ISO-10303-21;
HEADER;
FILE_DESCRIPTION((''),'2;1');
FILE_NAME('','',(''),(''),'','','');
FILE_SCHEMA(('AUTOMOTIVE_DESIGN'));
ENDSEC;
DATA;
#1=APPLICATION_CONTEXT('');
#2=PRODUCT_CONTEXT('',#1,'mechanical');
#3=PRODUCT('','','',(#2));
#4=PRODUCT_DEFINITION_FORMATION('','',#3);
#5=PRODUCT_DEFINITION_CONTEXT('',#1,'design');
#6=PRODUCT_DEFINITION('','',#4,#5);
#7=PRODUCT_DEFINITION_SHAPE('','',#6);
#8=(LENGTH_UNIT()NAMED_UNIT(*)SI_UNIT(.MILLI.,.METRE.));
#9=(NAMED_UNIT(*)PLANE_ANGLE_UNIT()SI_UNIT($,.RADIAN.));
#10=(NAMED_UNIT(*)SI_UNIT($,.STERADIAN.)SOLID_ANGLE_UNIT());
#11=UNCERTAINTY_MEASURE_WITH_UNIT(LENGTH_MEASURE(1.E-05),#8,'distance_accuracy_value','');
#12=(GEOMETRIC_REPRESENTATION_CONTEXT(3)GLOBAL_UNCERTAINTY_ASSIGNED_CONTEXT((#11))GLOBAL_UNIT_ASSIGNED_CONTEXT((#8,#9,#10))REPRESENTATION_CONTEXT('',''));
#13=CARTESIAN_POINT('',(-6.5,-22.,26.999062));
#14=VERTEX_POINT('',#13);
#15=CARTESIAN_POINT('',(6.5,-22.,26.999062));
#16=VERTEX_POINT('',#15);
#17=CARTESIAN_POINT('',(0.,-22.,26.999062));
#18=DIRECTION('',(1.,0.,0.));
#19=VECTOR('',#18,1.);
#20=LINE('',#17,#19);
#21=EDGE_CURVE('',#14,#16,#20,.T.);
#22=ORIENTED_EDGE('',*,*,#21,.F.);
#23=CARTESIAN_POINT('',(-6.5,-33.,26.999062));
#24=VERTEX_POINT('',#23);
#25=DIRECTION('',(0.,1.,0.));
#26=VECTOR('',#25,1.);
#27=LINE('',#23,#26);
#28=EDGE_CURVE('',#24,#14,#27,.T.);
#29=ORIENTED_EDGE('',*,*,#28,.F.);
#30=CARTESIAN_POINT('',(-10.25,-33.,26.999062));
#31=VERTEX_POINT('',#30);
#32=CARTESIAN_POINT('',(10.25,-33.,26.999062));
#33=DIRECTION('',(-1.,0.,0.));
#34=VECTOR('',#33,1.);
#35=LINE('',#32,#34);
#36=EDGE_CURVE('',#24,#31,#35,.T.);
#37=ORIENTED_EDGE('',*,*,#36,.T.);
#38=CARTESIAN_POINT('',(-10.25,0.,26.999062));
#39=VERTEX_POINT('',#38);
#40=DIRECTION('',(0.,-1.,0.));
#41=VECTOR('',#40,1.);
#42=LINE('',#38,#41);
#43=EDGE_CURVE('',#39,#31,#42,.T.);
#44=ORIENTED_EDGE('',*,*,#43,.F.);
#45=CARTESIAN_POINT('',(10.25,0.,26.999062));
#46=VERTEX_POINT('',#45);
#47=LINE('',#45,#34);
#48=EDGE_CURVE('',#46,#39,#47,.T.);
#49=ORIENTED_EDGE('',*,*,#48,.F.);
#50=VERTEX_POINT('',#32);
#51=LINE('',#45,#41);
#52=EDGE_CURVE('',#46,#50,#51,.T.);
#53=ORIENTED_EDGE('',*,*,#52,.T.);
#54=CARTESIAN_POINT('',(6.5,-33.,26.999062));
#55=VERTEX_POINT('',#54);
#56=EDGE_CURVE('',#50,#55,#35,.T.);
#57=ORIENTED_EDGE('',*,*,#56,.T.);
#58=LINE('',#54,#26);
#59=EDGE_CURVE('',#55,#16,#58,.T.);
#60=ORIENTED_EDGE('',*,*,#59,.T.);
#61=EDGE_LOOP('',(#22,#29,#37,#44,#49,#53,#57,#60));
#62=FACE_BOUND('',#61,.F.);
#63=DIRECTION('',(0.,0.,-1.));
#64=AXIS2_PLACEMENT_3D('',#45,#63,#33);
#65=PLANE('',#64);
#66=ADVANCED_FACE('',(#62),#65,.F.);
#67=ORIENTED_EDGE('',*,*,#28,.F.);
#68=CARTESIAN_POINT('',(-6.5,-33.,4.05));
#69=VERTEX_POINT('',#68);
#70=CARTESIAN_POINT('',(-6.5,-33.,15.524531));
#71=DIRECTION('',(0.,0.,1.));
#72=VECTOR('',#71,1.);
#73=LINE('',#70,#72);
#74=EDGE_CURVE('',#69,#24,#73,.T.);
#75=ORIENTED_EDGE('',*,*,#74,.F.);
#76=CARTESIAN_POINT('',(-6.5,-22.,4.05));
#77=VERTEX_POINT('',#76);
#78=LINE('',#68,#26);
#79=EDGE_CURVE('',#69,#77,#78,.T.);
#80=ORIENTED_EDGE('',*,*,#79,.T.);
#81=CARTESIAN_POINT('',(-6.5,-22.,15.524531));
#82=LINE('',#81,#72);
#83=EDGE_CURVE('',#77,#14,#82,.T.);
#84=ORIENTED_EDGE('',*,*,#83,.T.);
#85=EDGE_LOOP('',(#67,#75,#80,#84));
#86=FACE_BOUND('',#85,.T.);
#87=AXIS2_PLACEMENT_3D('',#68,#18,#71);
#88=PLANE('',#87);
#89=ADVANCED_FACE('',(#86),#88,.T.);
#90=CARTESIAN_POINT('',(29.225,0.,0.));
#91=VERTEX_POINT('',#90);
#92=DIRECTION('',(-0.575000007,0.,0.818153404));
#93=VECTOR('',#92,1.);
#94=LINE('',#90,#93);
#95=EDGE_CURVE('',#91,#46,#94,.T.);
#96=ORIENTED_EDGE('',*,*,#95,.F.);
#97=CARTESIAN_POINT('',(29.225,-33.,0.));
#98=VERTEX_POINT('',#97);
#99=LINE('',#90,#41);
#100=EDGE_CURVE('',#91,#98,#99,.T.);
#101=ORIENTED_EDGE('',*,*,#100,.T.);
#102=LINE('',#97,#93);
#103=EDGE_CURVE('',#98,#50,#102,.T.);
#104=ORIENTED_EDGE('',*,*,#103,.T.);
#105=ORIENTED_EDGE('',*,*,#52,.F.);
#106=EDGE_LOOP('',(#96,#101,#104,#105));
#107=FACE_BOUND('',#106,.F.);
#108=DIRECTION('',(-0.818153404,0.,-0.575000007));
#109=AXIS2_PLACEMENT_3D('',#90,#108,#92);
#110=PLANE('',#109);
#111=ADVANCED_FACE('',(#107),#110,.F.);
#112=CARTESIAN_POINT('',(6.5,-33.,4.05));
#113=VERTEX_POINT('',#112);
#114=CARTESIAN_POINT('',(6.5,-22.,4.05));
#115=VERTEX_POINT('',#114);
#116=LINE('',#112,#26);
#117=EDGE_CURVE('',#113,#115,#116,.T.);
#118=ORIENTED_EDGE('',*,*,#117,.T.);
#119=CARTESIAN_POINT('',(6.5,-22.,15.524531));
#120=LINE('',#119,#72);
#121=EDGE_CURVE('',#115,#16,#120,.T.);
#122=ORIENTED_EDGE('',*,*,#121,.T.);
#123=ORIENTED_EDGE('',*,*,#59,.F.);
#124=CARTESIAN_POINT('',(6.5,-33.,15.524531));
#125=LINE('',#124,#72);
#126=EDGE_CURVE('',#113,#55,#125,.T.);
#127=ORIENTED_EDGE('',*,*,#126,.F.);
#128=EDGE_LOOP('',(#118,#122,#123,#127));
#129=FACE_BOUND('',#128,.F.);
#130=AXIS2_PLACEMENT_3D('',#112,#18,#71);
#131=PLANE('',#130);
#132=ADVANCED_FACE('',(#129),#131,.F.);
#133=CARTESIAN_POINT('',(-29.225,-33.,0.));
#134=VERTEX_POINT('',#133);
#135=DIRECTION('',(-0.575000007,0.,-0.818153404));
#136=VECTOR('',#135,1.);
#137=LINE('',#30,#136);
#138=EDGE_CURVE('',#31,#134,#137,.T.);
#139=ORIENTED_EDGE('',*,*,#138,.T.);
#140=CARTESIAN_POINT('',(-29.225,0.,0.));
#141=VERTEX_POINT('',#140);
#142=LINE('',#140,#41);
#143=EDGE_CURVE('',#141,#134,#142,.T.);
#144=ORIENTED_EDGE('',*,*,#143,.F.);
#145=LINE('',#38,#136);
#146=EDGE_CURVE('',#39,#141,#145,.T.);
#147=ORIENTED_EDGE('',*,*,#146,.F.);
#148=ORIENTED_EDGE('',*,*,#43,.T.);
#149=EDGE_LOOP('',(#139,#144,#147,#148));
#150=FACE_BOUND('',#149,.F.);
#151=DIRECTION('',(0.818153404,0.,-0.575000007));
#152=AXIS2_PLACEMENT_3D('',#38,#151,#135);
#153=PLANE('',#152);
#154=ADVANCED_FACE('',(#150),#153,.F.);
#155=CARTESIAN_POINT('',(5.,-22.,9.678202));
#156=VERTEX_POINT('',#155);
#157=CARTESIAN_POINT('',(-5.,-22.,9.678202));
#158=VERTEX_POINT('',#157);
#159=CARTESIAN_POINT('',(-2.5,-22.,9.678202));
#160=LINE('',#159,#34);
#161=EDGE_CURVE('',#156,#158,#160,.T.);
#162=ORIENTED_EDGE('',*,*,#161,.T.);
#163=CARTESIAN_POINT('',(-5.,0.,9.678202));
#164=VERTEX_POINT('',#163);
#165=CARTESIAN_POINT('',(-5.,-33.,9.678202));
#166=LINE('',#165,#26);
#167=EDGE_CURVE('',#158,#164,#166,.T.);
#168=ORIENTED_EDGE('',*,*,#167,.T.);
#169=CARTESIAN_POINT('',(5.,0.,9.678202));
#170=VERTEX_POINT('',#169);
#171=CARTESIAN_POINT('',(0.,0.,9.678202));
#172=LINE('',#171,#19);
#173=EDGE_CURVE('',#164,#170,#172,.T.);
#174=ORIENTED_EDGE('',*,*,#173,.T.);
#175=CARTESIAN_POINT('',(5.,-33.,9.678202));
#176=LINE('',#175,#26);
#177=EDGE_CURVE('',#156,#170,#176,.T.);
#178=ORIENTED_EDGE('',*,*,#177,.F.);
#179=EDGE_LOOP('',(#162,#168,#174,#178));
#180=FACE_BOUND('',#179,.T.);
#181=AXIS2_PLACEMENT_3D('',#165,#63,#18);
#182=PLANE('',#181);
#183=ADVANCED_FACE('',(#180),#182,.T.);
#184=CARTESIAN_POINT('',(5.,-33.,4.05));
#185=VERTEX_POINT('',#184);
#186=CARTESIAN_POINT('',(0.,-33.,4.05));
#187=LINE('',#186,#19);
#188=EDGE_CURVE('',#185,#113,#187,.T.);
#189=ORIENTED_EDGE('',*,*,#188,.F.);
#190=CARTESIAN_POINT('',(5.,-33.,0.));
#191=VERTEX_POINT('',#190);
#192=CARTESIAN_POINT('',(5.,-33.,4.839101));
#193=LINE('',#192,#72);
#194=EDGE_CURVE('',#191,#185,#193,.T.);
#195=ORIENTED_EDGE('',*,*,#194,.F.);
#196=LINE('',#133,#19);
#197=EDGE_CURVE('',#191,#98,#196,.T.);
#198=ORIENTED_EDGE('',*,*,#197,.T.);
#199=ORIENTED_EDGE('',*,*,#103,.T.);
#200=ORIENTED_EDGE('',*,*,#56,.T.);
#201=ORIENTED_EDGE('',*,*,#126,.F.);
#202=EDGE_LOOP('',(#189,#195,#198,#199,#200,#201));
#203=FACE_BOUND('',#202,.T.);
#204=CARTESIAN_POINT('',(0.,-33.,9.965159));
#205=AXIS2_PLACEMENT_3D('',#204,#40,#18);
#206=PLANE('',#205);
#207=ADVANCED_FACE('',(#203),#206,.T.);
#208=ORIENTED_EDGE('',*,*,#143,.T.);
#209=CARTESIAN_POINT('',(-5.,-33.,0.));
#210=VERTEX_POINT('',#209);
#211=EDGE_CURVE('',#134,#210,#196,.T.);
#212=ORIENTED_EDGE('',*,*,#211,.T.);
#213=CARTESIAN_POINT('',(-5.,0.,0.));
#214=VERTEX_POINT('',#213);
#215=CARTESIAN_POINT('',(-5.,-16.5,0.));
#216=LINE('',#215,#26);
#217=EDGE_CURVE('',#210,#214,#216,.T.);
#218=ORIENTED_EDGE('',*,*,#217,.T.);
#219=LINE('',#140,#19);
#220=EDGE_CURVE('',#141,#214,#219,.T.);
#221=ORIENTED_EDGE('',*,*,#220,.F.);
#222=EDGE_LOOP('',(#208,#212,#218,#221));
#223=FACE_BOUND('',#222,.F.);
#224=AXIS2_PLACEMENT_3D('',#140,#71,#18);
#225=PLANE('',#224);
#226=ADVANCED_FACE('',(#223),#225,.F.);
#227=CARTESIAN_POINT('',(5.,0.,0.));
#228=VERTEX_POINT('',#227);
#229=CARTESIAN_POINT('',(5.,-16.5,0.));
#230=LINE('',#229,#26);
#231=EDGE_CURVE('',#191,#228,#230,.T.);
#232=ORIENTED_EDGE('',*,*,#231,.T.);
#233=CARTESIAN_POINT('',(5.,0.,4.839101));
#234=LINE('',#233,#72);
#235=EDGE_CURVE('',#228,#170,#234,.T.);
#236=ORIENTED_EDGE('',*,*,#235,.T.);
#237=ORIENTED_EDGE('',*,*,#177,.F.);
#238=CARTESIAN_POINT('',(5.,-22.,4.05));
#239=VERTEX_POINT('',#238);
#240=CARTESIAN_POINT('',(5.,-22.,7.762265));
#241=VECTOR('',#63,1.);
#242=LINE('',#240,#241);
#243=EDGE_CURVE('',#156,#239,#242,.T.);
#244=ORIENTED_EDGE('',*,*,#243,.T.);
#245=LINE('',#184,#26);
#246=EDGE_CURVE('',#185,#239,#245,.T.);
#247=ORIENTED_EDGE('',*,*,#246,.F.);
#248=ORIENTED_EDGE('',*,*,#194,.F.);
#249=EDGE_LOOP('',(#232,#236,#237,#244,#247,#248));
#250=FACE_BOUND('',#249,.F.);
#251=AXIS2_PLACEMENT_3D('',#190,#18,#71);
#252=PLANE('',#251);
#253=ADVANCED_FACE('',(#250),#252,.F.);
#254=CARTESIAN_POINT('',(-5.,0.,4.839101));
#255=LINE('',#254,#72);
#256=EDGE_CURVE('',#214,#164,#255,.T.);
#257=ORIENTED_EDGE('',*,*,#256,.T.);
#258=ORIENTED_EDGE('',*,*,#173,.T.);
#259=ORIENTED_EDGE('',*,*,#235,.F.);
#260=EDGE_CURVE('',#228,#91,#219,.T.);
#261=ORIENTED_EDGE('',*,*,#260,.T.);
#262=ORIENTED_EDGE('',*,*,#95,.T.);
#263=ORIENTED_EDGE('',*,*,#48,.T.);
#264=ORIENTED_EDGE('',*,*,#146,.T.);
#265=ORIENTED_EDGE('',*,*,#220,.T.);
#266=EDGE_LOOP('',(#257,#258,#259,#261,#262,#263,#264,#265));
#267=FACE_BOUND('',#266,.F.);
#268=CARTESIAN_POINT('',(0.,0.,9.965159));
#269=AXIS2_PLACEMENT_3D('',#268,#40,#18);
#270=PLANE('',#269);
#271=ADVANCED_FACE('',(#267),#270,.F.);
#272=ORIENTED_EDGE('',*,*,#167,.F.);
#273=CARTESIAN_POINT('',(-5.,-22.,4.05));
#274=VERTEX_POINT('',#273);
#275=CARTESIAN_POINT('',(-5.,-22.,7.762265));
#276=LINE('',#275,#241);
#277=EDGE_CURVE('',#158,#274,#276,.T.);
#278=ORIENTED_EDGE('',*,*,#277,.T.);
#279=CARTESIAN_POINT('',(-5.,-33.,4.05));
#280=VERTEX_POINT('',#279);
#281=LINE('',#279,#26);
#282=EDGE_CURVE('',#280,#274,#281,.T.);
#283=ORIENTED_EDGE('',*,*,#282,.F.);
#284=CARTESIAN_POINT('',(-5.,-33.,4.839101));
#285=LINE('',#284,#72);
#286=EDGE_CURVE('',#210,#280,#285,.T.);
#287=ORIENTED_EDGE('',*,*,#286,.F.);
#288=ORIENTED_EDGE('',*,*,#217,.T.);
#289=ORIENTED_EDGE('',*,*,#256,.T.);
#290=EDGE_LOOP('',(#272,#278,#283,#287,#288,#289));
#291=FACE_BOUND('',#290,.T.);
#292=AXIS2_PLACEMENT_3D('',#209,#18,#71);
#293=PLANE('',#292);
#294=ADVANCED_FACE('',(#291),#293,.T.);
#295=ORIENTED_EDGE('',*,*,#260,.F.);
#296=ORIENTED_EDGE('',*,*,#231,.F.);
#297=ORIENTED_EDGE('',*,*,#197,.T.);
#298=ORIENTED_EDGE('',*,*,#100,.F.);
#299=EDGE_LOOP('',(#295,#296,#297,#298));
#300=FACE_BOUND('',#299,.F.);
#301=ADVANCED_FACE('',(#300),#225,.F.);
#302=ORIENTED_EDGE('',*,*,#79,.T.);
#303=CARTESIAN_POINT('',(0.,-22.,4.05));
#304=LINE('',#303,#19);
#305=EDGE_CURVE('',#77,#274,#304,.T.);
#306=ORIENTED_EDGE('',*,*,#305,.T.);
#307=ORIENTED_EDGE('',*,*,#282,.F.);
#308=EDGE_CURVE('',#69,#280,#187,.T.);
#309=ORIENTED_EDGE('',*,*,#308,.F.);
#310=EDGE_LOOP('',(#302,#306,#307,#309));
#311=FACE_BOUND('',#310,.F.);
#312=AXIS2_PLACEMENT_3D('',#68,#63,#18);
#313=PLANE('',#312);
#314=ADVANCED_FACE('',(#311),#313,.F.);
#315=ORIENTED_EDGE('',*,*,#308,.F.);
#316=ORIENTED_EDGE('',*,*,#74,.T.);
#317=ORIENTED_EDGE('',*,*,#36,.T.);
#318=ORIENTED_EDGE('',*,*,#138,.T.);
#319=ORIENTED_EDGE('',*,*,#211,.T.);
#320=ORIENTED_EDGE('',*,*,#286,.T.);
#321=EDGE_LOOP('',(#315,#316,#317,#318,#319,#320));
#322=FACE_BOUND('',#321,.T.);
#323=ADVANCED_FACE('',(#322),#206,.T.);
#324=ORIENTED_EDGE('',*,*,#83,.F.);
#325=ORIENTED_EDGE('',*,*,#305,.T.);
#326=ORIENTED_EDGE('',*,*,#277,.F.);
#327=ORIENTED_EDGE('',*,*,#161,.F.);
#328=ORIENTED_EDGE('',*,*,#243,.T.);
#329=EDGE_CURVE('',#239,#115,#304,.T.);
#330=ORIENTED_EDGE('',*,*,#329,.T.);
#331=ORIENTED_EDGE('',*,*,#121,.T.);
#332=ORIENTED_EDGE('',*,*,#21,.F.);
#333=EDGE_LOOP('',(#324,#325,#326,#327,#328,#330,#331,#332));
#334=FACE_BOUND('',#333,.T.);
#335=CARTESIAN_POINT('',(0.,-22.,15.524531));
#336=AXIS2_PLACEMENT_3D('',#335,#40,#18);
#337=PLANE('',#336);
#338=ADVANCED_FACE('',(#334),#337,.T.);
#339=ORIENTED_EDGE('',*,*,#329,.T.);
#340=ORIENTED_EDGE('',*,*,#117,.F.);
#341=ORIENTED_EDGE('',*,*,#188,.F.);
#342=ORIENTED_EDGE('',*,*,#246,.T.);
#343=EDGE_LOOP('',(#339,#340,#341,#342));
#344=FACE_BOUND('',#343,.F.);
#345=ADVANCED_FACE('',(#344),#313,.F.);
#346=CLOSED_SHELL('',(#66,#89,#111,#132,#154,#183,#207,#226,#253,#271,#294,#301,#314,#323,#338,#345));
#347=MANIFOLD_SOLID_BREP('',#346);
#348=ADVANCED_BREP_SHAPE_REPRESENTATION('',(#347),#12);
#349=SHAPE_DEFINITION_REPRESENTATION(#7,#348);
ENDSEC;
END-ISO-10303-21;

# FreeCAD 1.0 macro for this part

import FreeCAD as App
import Part
import Sketcher
Q = App.Units.Quantity


def add_polygon(sketch, points):
    """Adds a closed chain of lines whose ends are joined by coincident constraints."""
    first, n = sketch.GeometryCount, len(points)
    for a, b in zip(points, points[1:] + points[:1]):
        sketch.addGeometry(Part.LineSegment(App.Vector(*a, 0), App.Vector(*b, 0)), False)
    for i in range(n):
        sketch.addConstraint(Sketcher.Constraint("Coincident", first + i, 2, first + (i + 1) % n, 1))

doc = App.newDocument("Part")
params = doc.addObject("Spreadsheet::Sheet", "Params")
for row, (alias, value) in enumerate([
    ("sketch1_length", "33 mm"),
    ("sketch1_width", "20.5 mm"),
    ("sketch1_width2", "58.45 mm"),
    ("pad1_length", "33 mm"),
    ("sketch2_width", "10 mm"),
    ("pocket1_length", "33 mm"),
    ("sketch3_width", "13 mm"),
    ("pocket2_length", "11 mm"),
], start=1):
    params.set(f"A{row}", alias)
    params.set(f"B{row}", "=" + value)
    params.setAlias(f"B{row}", alias)

body = doc.addObject("PartDesign::Body", "Body")

# Sketch on XZ plane
sketch1 = body.newObject("Sketcher::SketchObject", "Sketch")
sketch1.AttachmentSupport = (doc.getObject("XZ_Plane"), [""])
sketch1.MapMode = "FlatFace"
add_polygon(sketch1, [(10, 27), (-10, 27), (-29, 0), (29, 0)])  # lines 0-3
sketch1.addConstraint([
    Sketcher.Constraint("Horizontal", 0),
    Sketcher.Constraint("Horizontal", 2),
    Sketcher.Constraint("Symmetric", 1, 2, 2, 2, -1, 1),
    Sketcher.Constraint("Equal", 1, 3),
    Sketcher.Constraint("Distance", 1, Q("33 mm")),
    Sketcher.Constraint("DistanceX", 0, 2, 0, 1, Q("20.5 mm")),
    Sketcher.Constraint("DistanceX", 2, 1, 2, 2, Q("58.45 mm")),
])
sketch1.setExpression("Constraints[8]", "Params.sketch1_length")
sketch1.setExpression("Constraints[9]", "Params.sketch1_width")
sketch1.setExpression("Constraints[10]", "Params.sketch1_width2")
pad1 = body.newObject("PartDesign::Pad", "Pad")
pad1.Profile = sketch1
pad1.setExpression("Length", "Params.pad1_length")

# Sketch on XZ plane
sketch2 = body.newObject("Sketcher::SketchObject", "Sketch001")
sketch2.AttachmentSupport = (doc.getObject("XZ_Plane"), [""])
sketch2.MapMode = "FlatFace"
sketch2.AttachmentOffset = App.Placement(App.Vector(0, 0, 33), App.Rotation())
add_polygon(sketch2, [(-5, 10), (-5, 0), (5, 0), (5, 10)])  # lines 0-3
sketch2.addConstraint([
    Sketcher.Constraint("Vertical", 0),
    Sketcher.Constraint("Horizontal", 1),
    Sketcher.Constraint("Vertical", 2),
    Sketcher.Constraint("Horizontal", 3),
    Sketcher.Constraint("Symmetric", 0, 2, 1, 2, -1, 1),
    Sketcher.Constraint("DistanceX", 1, 1, 1, 2, Q("10 mm")),
    Sketcher.Constraint("DistanceY", 0, 2, 0, 1, Q("9.678203 mm")),
])
sketch2.setExpression("Constraints[9]", "Params.sketch2_width")
pocket1 = body.newObject("PartDesign::Pocket", "Pocket")
pocket1.Profile = sketch2
pocket1.setExpression("Length", "Params.pocket1_length")

# Sketch on XZ plane
sketch3 = body.newObject("Sketcher::SketchObject", "Sketch002")
sketch3.AttachmentSupport = (doc.getObject("XZ_Plane"), [""])
sketch3.MapMode = "FlatFace"
sketch3.AttachmentOffset = App.Placement(App.Vector(0, 0, 33), App.Rotation())
add_polygon(sketch3, [(-6, 27), (-6, 4), (6, 4), (6, 27)])  # lines 0-3
sketch3.addConstraint([
    Sketcher.Constraint("Vertical", 0),
    Sketcher.Constraint("Horizontal", 1),
    Sketcher.Constraint("Vertical", 2),
    Sketcher.Constraint("Horizontal", 3),
    Sketcher.Constraint("DistanceX", 1, 1, 1, 2, Q("13 mm")),
    Sketcher.Constraint("DistanceX", 0, 2, -1, 1, Q("6.5 mm")),
    Sketcher.Constraint("DistanceY", -1, 1, 0, 2, Q("4.05 mm")),
    Sketcher.Constraint("DistanceY", 0, 2, 0, 1, Q("22.949062 mm")),
])
sketch3.setExpression("Constraints[8]", "Params.sketch3_width")
pocket2 = body.newObject("PartDesign::Pocket", "Pocket001")
pocket2.Profile = sketch3
pocket2.setExpression("Length", "Params.pocket2_length")

doc.recompute()
